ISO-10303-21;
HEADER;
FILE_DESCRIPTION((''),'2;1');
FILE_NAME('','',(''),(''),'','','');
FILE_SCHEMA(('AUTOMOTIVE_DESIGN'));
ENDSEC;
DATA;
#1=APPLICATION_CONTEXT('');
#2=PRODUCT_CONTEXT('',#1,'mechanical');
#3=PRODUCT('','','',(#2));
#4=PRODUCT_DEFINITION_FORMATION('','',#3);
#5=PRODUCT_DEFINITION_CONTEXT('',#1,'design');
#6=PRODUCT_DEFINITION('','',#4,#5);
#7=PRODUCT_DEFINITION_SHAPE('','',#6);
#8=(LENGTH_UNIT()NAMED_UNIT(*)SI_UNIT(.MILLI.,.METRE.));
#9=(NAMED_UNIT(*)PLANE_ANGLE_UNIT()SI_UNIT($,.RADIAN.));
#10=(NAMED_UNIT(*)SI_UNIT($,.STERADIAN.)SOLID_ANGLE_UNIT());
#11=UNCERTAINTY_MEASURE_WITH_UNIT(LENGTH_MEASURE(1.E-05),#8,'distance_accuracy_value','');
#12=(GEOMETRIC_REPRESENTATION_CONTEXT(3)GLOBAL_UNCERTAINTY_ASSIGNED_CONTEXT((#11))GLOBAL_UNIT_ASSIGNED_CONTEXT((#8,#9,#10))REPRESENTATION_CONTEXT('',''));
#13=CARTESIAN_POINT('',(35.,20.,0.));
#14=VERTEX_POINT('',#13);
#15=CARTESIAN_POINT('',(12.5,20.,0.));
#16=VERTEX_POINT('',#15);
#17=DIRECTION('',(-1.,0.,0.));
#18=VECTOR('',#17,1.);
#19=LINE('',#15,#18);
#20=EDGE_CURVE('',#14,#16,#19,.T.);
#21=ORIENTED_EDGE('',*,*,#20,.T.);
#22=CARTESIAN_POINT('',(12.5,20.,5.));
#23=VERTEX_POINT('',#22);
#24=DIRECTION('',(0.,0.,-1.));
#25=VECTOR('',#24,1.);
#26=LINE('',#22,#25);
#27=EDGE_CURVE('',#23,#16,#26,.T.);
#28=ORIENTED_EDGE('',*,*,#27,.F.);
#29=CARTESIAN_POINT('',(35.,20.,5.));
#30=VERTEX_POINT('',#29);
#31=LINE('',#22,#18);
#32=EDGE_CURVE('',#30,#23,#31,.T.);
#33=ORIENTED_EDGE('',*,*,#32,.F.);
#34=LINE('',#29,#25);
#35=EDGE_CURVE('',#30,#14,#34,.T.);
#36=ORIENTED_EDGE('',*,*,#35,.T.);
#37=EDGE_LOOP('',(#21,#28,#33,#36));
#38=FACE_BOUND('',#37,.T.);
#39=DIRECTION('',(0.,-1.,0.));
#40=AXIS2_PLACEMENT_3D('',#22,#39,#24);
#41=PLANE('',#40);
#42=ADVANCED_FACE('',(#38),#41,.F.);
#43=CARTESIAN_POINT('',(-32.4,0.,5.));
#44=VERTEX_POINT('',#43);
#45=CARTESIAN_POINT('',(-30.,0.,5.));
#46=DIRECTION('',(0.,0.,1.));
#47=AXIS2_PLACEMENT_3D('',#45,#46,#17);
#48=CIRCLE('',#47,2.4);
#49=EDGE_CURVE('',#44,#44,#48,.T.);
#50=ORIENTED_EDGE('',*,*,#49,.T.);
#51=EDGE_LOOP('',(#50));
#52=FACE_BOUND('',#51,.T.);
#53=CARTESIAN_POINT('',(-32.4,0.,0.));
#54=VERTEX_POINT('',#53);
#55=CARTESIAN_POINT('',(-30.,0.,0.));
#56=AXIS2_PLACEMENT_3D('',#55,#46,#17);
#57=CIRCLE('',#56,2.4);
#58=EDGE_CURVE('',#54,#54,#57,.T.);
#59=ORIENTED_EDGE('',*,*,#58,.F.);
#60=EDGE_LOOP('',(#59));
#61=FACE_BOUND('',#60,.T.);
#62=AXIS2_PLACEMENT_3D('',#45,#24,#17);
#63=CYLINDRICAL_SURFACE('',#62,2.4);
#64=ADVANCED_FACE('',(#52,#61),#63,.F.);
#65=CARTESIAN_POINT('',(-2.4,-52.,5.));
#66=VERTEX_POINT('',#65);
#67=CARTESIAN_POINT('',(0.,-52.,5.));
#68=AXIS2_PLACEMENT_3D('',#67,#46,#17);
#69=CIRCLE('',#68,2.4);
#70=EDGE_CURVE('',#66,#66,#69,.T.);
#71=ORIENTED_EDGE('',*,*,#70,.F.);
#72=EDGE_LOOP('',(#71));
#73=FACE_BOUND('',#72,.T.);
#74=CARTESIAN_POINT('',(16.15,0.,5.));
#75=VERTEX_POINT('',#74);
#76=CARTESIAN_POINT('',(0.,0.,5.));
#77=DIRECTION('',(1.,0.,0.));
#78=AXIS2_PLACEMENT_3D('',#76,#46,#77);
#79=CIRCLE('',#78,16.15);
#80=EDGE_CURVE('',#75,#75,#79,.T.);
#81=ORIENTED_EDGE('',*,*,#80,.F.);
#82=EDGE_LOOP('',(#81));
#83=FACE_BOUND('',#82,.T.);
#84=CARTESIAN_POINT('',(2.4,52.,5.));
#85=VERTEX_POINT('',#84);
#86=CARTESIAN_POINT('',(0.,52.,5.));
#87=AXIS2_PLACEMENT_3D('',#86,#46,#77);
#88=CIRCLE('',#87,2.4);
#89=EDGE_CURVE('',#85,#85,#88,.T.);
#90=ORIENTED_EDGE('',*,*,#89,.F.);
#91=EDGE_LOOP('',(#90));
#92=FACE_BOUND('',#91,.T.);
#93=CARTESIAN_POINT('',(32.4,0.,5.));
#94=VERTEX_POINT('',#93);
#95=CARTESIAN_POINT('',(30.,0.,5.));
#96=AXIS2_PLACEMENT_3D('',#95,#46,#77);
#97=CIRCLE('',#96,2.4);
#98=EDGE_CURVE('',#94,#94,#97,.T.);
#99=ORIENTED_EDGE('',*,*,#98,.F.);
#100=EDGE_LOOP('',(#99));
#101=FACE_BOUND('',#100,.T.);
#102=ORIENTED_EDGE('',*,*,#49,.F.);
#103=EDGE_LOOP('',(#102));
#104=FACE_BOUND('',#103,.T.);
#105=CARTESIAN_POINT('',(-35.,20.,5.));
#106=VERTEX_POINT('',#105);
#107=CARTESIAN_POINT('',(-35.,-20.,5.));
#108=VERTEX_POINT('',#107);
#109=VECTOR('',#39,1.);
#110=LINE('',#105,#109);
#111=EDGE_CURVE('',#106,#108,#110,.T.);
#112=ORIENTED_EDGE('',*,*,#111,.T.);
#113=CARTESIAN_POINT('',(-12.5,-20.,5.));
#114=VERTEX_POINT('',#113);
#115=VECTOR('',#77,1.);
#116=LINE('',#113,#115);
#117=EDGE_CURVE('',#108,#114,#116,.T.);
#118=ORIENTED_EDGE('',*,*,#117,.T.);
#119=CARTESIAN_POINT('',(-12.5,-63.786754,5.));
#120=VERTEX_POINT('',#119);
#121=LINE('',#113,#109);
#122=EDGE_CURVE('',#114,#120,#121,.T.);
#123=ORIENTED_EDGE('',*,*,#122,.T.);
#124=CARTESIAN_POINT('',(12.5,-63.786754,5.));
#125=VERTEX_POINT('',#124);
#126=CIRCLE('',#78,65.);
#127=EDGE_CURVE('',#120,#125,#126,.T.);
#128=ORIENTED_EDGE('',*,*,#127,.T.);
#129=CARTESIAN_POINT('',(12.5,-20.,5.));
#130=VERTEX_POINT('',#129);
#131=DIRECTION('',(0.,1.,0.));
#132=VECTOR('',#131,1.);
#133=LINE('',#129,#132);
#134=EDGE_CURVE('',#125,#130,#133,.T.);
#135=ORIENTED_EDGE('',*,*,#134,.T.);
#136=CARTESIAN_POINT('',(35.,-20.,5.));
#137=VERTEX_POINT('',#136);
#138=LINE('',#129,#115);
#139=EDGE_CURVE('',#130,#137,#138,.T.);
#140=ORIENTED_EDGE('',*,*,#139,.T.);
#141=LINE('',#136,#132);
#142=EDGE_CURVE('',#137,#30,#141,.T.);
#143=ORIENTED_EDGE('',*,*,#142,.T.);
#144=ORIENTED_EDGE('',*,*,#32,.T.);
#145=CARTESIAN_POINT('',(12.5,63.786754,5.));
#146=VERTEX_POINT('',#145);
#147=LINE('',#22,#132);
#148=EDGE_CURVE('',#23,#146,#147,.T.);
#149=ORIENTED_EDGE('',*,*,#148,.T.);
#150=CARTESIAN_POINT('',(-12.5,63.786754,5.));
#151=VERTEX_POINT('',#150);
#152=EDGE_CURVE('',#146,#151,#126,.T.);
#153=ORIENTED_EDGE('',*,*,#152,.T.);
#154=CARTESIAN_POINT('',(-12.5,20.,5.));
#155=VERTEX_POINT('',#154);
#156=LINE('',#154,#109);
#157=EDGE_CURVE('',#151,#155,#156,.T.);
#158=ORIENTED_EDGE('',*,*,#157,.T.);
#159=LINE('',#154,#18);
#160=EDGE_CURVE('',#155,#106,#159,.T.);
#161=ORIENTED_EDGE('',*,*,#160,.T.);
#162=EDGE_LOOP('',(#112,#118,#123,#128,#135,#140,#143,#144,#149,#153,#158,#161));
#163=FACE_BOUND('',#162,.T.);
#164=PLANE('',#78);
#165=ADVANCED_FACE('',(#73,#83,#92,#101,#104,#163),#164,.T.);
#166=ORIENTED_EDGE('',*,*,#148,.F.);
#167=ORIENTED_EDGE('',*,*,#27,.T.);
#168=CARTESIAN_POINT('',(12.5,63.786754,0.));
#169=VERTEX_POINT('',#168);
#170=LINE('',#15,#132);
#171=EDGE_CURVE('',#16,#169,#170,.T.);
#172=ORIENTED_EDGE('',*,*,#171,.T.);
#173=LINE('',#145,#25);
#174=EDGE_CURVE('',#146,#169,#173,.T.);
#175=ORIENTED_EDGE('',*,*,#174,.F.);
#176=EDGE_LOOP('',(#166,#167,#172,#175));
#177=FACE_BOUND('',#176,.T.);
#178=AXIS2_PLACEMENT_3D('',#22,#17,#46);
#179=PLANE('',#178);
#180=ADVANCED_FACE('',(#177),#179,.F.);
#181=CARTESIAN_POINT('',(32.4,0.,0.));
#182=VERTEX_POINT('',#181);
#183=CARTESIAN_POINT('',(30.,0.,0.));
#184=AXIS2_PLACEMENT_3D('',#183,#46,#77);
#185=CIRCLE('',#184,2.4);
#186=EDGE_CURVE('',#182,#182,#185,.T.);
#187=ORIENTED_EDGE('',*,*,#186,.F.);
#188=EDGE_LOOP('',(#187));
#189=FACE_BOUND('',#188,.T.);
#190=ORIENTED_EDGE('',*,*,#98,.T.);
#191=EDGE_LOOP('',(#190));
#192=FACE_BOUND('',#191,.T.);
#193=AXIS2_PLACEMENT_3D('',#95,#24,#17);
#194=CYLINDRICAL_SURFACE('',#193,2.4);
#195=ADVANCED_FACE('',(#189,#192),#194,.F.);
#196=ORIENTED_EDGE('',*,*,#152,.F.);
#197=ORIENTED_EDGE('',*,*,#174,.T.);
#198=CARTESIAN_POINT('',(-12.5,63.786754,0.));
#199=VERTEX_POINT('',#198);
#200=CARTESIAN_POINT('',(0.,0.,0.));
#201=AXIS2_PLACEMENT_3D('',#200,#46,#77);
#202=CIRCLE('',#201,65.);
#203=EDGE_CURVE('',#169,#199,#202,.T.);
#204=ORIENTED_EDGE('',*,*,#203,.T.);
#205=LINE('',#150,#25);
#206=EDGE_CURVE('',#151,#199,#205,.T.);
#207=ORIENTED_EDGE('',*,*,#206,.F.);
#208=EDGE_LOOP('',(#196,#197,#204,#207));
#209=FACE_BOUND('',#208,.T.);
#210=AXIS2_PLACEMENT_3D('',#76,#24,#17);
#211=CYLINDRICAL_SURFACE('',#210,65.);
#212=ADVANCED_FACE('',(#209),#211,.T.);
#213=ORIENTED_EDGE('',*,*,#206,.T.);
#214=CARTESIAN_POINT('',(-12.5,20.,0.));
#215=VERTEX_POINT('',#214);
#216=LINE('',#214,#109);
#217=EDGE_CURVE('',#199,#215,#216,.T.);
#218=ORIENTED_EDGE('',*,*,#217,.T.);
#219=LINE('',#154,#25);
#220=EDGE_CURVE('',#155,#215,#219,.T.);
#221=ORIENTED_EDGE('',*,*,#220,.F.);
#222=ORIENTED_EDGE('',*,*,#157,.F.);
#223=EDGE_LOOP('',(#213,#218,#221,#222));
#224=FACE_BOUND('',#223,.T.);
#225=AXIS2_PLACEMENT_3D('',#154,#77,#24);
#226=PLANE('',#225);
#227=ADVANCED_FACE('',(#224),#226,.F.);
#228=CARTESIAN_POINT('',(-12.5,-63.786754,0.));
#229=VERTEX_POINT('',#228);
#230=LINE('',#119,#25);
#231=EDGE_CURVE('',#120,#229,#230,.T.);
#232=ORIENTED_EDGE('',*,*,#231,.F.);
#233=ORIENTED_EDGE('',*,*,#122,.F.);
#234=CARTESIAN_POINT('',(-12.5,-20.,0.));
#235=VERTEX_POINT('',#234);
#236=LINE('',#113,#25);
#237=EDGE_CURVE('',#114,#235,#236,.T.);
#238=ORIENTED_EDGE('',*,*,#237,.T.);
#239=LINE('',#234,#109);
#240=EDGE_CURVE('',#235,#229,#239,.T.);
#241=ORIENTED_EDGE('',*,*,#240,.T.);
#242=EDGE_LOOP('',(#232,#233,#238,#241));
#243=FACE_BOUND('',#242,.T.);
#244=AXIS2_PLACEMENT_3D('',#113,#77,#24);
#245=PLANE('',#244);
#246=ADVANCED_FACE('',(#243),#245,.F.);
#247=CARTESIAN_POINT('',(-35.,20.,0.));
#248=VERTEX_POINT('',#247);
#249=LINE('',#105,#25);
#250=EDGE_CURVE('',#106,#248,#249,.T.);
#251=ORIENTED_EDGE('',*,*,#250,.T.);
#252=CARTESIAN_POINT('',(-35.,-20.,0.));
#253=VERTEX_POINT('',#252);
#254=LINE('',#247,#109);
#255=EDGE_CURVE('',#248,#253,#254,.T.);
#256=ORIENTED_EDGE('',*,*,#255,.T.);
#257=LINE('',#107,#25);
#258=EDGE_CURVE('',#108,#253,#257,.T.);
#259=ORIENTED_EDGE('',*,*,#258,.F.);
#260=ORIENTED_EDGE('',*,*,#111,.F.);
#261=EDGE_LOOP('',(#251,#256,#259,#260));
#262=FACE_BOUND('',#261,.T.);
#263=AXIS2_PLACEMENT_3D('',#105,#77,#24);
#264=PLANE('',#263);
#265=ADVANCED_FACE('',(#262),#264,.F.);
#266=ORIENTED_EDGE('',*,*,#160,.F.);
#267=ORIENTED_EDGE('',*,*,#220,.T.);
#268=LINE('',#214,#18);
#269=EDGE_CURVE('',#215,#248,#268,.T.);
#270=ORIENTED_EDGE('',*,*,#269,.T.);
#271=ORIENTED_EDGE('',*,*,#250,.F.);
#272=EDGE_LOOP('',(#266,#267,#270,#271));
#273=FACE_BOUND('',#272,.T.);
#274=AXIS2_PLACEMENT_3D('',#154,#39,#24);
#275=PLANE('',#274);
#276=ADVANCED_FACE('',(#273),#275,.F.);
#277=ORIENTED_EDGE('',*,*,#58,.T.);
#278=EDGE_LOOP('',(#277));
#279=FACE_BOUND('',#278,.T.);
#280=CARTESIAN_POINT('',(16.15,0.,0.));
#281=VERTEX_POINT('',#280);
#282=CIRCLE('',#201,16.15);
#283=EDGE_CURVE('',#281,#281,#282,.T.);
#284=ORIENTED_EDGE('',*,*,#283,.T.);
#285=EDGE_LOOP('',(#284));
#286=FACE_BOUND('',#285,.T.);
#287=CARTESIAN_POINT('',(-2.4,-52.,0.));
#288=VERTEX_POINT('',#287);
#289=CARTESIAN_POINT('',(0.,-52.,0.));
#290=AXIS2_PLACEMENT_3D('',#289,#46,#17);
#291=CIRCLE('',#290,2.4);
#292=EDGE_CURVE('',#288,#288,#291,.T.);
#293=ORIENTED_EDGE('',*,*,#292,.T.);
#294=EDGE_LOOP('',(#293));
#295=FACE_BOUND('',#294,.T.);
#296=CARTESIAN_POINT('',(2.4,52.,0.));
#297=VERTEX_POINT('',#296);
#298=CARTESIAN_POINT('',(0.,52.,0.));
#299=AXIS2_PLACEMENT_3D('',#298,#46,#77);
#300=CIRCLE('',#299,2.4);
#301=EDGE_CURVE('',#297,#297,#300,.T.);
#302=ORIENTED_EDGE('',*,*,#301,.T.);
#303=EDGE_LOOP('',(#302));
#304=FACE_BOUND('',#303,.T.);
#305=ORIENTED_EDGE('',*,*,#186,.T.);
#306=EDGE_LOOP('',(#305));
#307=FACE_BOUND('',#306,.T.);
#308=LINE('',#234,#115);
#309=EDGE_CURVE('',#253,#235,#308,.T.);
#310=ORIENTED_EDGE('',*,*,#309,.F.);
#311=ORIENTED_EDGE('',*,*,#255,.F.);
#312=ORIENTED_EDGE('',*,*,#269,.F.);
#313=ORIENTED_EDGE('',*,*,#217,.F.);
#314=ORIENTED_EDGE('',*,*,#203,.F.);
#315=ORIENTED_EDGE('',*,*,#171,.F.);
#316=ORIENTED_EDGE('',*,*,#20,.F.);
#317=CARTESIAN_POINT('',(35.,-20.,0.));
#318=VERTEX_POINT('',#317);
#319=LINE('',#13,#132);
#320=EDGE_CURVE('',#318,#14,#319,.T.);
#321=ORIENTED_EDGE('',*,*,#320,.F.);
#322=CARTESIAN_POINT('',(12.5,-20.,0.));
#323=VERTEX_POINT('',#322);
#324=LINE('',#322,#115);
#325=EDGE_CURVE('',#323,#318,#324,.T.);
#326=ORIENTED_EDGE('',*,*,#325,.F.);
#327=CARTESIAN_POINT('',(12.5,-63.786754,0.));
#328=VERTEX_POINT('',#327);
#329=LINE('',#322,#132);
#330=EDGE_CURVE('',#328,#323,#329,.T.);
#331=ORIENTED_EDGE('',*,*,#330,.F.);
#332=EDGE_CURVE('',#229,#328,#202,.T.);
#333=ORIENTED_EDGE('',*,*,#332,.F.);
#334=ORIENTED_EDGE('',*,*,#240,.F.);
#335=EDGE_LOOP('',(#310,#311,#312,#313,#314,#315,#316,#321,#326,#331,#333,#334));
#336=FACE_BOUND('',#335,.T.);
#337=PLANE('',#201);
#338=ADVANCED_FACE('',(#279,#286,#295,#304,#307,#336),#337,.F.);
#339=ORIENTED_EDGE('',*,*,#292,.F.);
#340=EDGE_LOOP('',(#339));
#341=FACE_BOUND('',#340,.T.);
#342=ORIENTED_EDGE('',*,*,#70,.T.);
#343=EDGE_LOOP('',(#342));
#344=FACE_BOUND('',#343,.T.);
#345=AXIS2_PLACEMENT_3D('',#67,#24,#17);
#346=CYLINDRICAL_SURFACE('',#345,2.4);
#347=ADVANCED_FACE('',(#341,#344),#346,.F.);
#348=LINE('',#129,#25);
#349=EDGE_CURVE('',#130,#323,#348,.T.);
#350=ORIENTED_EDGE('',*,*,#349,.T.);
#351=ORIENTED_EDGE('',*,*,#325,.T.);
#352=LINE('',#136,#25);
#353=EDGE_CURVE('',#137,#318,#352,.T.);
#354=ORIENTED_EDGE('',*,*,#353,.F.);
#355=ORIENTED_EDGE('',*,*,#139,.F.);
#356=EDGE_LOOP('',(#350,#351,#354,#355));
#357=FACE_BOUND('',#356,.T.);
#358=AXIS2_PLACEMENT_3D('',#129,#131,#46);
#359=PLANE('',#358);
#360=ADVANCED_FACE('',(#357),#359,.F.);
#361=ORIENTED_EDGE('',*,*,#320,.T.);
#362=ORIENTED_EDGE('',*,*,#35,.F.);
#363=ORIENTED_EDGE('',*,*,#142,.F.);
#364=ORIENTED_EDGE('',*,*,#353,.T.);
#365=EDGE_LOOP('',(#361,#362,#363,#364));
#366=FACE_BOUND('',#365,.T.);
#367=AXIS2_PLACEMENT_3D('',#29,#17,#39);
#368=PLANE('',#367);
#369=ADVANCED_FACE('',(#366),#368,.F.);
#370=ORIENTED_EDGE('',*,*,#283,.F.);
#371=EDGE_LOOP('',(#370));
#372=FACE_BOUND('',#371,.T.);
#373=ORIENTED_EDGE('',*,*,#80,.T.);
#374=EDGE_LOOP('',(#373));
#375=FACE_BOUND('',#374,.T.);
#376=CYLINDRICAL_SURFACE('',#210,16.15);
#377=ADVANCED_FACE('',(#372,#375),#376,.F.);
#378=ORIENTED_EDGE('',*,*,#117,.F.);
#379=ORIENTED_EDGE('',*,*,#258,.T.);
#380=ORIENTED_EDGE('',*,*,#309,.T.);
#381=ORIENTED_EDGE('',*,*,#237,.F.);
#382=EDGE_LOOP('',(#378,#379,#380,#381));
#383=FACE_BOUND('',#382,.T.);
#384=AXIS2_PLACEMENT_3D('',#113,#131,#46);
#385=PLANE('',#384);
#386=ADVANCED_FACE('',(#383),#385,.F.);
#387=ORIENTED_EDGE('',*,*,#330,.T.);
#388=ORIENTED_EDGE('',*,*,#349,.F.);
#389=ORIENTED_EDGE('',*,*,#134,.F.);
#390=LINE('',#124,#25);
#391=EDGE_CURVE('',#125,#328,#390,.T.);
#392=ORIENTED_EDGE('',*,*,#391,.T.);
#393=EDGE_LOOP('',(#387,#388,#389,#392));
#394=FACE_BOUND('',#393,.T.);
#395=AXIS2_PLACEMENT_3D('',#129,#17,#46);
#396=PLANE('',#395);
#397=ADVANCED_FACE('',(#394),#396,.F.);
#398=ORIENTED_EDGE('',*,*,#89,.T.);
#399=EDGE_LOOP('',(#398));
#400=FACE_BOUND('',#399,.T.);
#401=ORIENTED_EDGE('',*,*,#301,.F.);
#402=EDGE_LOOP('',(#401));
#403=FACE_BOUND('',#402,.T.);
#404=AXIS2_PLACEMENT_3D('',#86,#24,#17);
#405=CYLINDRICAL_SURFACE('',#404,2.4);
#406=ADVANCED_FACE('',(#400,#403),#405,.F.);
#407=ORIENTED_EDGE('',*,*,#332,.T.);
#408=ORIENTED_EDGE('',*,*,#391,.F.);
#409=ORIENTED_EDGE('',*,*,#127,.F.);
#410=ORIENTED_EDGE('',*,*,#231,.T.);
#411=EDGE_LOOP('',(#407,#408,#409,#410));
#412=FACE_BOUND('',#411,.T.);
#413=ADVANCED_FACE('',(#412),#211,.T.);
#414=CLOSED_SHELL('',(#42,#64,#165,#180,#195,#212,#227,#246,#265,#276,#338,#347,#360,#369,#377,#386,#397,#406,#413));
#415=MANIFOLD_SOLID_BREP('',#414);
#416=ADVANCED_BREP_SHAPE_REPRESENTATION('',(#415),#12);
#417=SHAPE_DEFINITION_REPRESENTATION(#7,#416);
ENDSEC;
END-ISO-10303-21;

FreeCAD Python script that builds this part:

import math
import FreeCAD as App
import Part
import Sketcher
from FreeCAD import Vector
Q = App.Units.Quantity

doc = App.newDocument("Part")
params = doc.addObject("Spreadsheet::Sheet", "Params")
for row, (alias, value) in enumerate([
    ("sketch1_radius", "65 mm"),
    ("sketch1_diameter", "4.8 mm"),
    ("sketch1_diameter2", "32.3 mm"),
    ("sketch1_height", "40 mm"),
    ("sketch1_width", "22.5 mm"),
    ("pad1_length", "5 mm"),
], start=1):
    params.set(f"A{row}", alias)
    params.set(f"B{row}", "=" + value)
    params.setAlias(f"B{row}", alias)

body = doc.addObject("PartDesign::Body", "Body")

# Sketch on XY plane
sketch1 = doc.addObject("Sketcher::SketchObject", "Sketch")
body.addObject(sketch1)
sketch1.AttachmentSupport = (doc.XY_Plane, [""])
sketch1.MapMode = "FlatFace"
sketch1.addGeometry(Part.LineSegment(Vector(35, 20, 0), Vector(12.5, 20, 0)), False)
sketch1.addGeometry(Part.LineSegment(Vector(12.5, 20, 0), Vector(12.5, 63.786754, 0)), False)
sketch1.addGeometry(Part.ArcOfCircle(Part.Circle(Vector(0, 0, 0), Vector(0, 0, 1), 65), math.radians(78.912511), math.radians(101.087489)), False)
sketch1.addGeometry(Part.LineSegment(Vector(-12.5, 63.786754, 0), Vector(-12.5, 20, 0)), False)
sketch1.addGeometry(Part.LineSegment(Vector(-12.5, 20, 0), Vector(-35, 20, 0)), False)
sketch1.addGeometry(Part.LineSegment(Vector(-35, 20, 0), Vector(-35, -20, 0)), False)
sketch1.addGeometry(Part.LineSegment(Vector(-35, -20, 0), Vector(-12.5, -20, 0)), False)
sketch1.addGeometry(Part.LineSegment(Vector(-12.5, -20, 0), Vector(-12.5, -63.786754, 0)), False)
sketch1.addGeometry(Part.ArcOfCircle(Part.Circle(Vector(0, 0, 0), Vector(0, 0, 1), 65), math.radians(-101.087489), math.radians(-78.912511)), False)
sketch1.addGeometry(Part.LineSegment(Vector(12.5, -63.786754, 0), Vector(12.5, -20, 0)), False)
sketch1.addGeometry(Part.LineSegment(Vector(12.5, -20, 0), Vector(35, -20, 0)), False)
sketch1.addGeometry(Part.LineSegment(Vector(35, -20, 0), Vector(35, 20, 0)), False)
sketch1.addGeometry(Part.Circle(Vector(0, -52, 0), Vector(0, 0, 1), 2.4), False)
sketch1.addGeometry(Part.Circle(Vector(30, 0, 0), Vector(0, 0, 1), 2.4), False)
sketch1.addGeometry(Part.Circle(Vector(0, 0, 0), Vector(0, 0, 1), 16.15), False)
sketch1.addGeometry(Part.Circle(Vector(-30, 0, 0), Vector(0, 0, 1), 2.4), False)
sketch1.addGeometry(Part.Circle(Vector(0, 52, 0), Vector(0, 0, 1), 2.4), False)
sketch1.addConstraint(Sketcher.Constraint("Coincident", 0, 2, 1, 1))
sketch1.addConstraint(Sketcher.Constraint("Coincident", 1, 2, 2, 1))
sketch1.addConstraint(Sketcher.Constraint("Coincident", 2, 2, 3, 1))
sketch1.addConstraint(Sketcher.Constraint("Coincident", 3, 2, 4, 1))
sketch1.addConstraint(Sketcher.Constraint("Coincident", 4, 2, 5, 1))
sketch1.addConstraint(Sketcher.Constraint("Coincident", 5, 2, 6, 1))
sketch1.addConstraint(Sketcher.Constraint("Coincident", 6, 2, 7, 1))
sketch1.addConstraint(Sketcher.Constraint("Coincident", 7, 2, 8, 1))
sketch1.addConstraint(Sketcher.Constraint("Coincident", 8, 2, 9, 1))
sketch1.addConstraint(Sketcher.Constraint("Coincident", 9, 2, 10, 1))
sketch1.addConstraint(Sketcher.Constraint("Coincident", 10, 2, 11, 1))
sketch1.addConstraint(Sketcher.Constraint("Coincident", 11, 2, 0, 1))
sketch1.addConstraint(Sketcher.Constraint("Horizontal", 0))
sketch1.addConstraint(Sketcher.Constraint("Vertical", 1))
sketch1.addConstraint(Sketcher.Constraint("Vertical", 3))
sketch1.addConstraint(Sketcher.Constraint("Horizontal", 4))
sketch1.addConstraint(Sketcher.Constraint("Vertical", 5))
sketch1.addConstraint(Sketcher.Constraint("Horizontal", 6))
sketch1.addConstraint(Sketcher.Constraint("Vertical", 7))
sketch1.addConstraint(Sketcher.Constraint("Vertical", 9))
sketch1.addConstraint(Sketcher.Constraint("Horizontal", 10))
sketch1.addConstraint(Sketcher.Constraint("Vertical", 11))
sketch1.addConstraint(Sketcher.Constraint("Coincident", 2, 3, -1, 1))
sketch1.addConstraint(Sketcher.Constraint("Coincident", 8, 3, -1, 1))
sketch1.addConstraint(Sketcher.Constraint("Coincident", 14, 3, -1, 1))
sketch1.addConstraint(Sketcher.Constraint("Equal", 2, 8))
sketch1.addConstraint(Sketcher.Constraint("Equal", 12, 13))
sketch1.addConstraint(Sketcher.Constraint("Equal", 13, 15))
sketch1.addConstraint(Sketcher.Constraint("Equal", 15, 16))
sketch1.addConstraint(Sketcher.Constraint("Symmetric", 13, 3, 15, 3, -1, 1))
sketch1.addConstraint(Sketcher.Constraint("Symmetric", 12, 3, 16, 3, -1, 1))
sketch1.addConstraint(Sketcher.Constraint("Symmetric", 0, 2, 6, 2, -1, 1))
sketch1.addConstraint(Sketcher.Constraint("Symmetric", 3, 2, 9, 2, -1, 1))
sketch1.addConstraint(Sketcher.Constraint("Symmetric", 0, 2, 3, 2, -2))
sketch1.addConstraint(Sketcher.Constraint("PointOnObject", 12, 3, -2))
sketch1.addConstraint(Sketcher.Constraint("PointOnObject", 13, 3, -1))
sketch1.addConstraint(Sketcher.Constraint("Equal", 0, 4))
sketch1.addConstraint(Sketcher.Constraint("Radius", 2, Q("65 mm")))
sketch1.addConstraint(Sketcher.Constraint("Diameter", 12, Q("4.8 mm")))
sketch1.addConstraint(Sketcher.Constraint("Diameter", 14, Q("32.3 mm")))
sketch1.addConstraint(Sketcher.Constraint("DistanceY", 5, 2, 5, 1, Q("40 mm")))
sketch1.addConstraint(Sketcher.Constraint("DistanceX", 0, 2, 0, 1, Q("22.5 mm")))
sketch1.addConstraint(Sketcher.Constraint("DistanceY", 12, 3, -1, 1, Q("52 mm")))
sketch1.addConstraint(Sketcher.Constraint("DistanceX", -1, 1, 13, 3, Q("30 mm")))
sketch1.addConstraint(Sketcher.Constraint("DistanceX", 4, 2, -1, 1, Q("35 mm")))
sketch1.setExpression("Constraints[37]", "Params.sketch1_radius")
sketch1.setExpression("Constraints[38]", "Params.sketch1_diameter")
sketch1.setExpression("Constraints[39]", "Params.sketch1_diameter2")
sketch1.setExpression("Constraints[40]", "Params.sketch1_height")
sketch1.setExpression("Constraints[41]", "Params.sketch1_width")
pad1 = doc.addObject("PartDesign::Pad", "Pad")
body.addObject(pad1)
pad1.Profile = sketch1
pad1.setExpression("Length", "Params.pad1_length")

doc.recompute()
